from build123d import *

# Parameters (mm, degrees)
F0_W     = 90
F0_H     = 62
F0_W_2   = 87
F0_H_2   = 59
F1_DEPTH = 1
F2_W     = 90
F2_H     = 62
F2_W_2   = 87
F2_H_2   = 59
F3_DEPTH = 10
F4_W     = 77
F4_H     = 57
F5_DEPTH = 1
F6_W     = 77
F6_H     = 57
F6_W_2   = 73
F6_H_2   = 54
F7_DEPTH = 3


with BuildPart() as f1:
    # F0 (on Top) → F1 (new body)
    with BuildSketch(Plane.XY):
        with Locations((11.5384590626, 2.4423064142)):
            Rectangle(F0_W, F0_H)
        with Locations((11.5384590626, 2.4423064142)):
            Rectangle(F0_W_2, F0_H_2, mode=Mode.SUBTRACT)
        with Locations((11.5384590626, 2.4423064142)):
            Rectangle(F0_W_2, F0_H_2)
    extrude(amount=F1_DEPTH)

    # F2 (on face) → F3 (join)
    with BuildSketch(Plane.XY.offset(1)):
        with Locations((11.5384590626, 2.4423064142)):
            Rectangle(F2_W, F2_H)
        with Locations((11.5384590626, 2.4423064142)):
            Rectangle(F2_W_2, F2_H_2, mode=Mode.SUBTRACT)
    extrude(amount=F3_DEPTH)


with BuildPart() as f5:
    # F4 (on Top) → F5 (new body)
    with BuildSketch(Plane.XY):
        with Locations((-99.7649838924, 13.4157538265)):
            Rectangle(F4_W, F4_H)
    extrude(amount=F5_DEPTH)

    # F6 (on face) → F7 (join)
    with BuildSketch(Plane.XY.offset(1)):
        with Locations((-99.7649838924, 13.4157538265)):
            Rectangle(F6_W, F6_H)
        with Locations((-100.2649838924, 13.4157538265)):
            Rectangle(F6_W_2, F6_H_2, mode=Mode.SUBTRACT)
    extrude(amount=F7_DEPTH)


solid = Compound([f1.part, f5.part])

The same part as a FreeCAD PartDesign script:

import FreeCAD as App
import Part
import Sketcher


def add_polygon(sketch, points):
    """Adds a closed chain of lines whose ends are joined by coincident constraints."""
    first, n = sketch.GeometryCount, len(points)
    for a, b in zip(points, points[1:] + points[:1]):
        sketch.addGeometry(Part.LineSegment(App.Vector(*a, 0), App.Vector(*b, 0)), False)
    for i in range(n):
        sketch.addConstraint(Sketcher.Constraint("Coincident", first + i, 2, first + (i + 1) % n, 1))

doc = App.newDocument("Part")
body = doc.addObject("PartDesign::Body", "Body")

sketch1 = body.newObject("Sketcher::SketchObject", "Sketch")
sketch1.AttachmentSupport = (doc.getObject("XY_Plane"), [""])
sketch1.MapMode = "FlatFace"
add_polygon(sketch1, [(-33.461541, 33.442306), (-33.461541, -28.557694), (56.538459, -28.557694), (56.538459, 33.442306)])
sketch1.addConstraint([
    Sketcher.Constraint("Vertical", 0),
    Sketcher.Constraint("Horizontal", 1),
    Sketcher.Constraint("Vertical", 2),
    Sketcher.Constraint("Horizontal", 3),
    Sketcher.Constraint("DistanceX", 1, 1, 1, 2, 90.0),
    Sketcher.Constraint("DistanceY", 0, 2, 0, 1, 62.0),
    Sketcher.Constraint("DistanceX", 0, 2, -1, 1, 33.461541),
    Sketcher.Constraint("DistanceY", 0, 2, -1, 1, 28.557694),
])
pad1 = body.newObject("PartDesign::Pad", "Pad")
pad1.Profile = sketch1
pad1.Length = 1

sketch2 = body.newObject("Sketcher::SketchObject", "Sketch001")
sketch2.AttachmentSupport = (doc.getObject("XY_Plane"), [""])
sketch2.MapMode = "FlatFace"
sketch2.AttachmentOffset = App.Placement(App.Vector(0, 0, 1), App.Rotation())
add_polygon(sketch2, [(-33.461541, 33.442306), (-33.461541, -28.557694), (56.538459, -28.557694), (56.538459, 33.442306)])
add_polygon(sketch2, [(55.038459, -27.057694), (-31.961541, -27.057694), (-31.961541, 31.942306), (55.038459, 31.942306)])
sketch2.addConstraint([
    Sketcher.Constraint("Vertical", 0),
    Sketcher.Constraint("Horizontal", 1),
    Sketcher.Constraint("Vertical", 2),
    Sketcher.Constraint("Horizontal", 3),
    Sketcher.Constraint("Horizontal", 4),
    Sketcher.Constraint("Vertical", 5),
    Sketcher.Constraint("Horizontal", 6),
    Sketcher.Constraint("Vertical", 7),
    Sketcher.Constraint("DistanceX", 1, 1, 1, 2, 90.0),
    Sketcher.Constraint("DistanceX", 4, 2, 4, 1, 87.0),
    Sketcher.Constraint("DistanceY", 0, 2, 0, 1, 62.0),
    Sketcher.Constraint("DistanceY", 5, 1, 5, 2, 59.0),
    Sketcher.Constraint("DistanceX", 0, 2, 4, 2, 1.5),
    Sketcher.Constraint("DistanceY", 0, 2, 4, 2, 1.5),
    Sketcher.Constraint("DistanceX", 0, 2, -1, 1, 33.461541),
    Sketcher.Constraint("DistanceY", 0, 2, -1, 1, 28.557694),
])
pad2 = body.newObject("PartDesign::Pad", "Pad001")
pad2.Profile = sketch2
pad2.Length = 10
body2 = doc.addObject("PartDesign::Body", "Body001")

sketch3 = body2.newObject("Sketcher::SketchObject", "Sketch002")
sketch3.AttachmentSupport = (doc.getObject("XY_Plane001"), [""])
sketch3.MapMode = "FlatFace"
add_polygon(sketch3, [(-138.264984, 41.915754), (-138.264984, -15.084246), (-61.264984, -15.084246), (-61.264984, 41.915754)])
sketch3.addConstraint([
    Sketcher.Constraint("Vertical", 0),
    Sketcher.Constraint("Horizontal", 1),
    Sketcher.Constraint("Vertical", 2),
    Sketcher.Constraint("Horizontal", 3),
    Sketcher.Constraint("DistanceX", 1, 1, 1, 2, 77.0),
    Sketcher.Constraint("DistanceY", 0, 2, 0, 1, 57.0),
    Sketcher.Constraint("DistanceX", 0, 2, -1, 1, 138.264984),
    Sketcher.Constraint("DistanceY", 0, 2, -1, 1, 15.084246),
])
pad3 = body2.newObject("PartDesign::Pad", "Pad002")
pad3.Profile = sketch3
pad3.Length = 1

sketch4 = body2.newObject("Sketcher::SketchObject", "Sketch003")
sketch4.AttachmentSupport = (doc.getObject("XY_Plane001"), [""])
sketch4.MapMode = "FlatFace"
sketch4.AttachmentOffset = App.Placement(App.Vector(0, 0, 1), App.Rotation())
add_polygon(sketch4, [(-138.264984, 41.915754), (-138.264984, -15.084246), (-61.264984, -15.084246), (-61.264984, 41.915754)])
add_polygon(sketch4, [(-63.764984, -13.584246), (-136.764984, -13.584246), (-136.764984, 40.415754), (-63.764984, 40.415754)])
sketch4.addConstraint([
    Sketcher.Constraint("Vertical", 0),
    Sketcher.Constraint("Horizontal", 1),
    Sketcher.Constraint("Vertical", 2),
    Sketcher.Constraint("Horizontal", 3),
    Sketcher.Constraint("Horizontal", 4),
    Sketcher.Constraint("Vertical", 5),
    Sketcher.Constraint("Horizontal", 6),
    Sketcher.Constraint("Vertical", 7),
    Sketcher.Constraint("DistanceX", 1, 1, 1, 2, 77.0),
    Sketcher.Constraint("DistanceX", 4, 2, 4, 1, 73.0),
    Sketcher.Constraint("DistanceY", 0, 2, 0, 1, 57.0),
    Sketcher.Constraint("DistanceY", 5, 1, 5, 2, 54.0),
    Sketcher.Constraint("DistanceX", 0, 2, 4, 2, 1.5),
    Sketcher.Constraint("DistanceY", 0, 2, 4, 2, 1.5),
    Sketcher.Constraint("DistanceX", 0, 2, -1, 1, 138.264984),
    Sketcher.Constraint("DistanceY", 0, 2, -1, 1, 15.084246),
])
pad4 = body2.newObject("PartDesign::Pad", "Pad003")
pad4.Profile = sketch4
pad4.Length = 3

doc.recompute()
